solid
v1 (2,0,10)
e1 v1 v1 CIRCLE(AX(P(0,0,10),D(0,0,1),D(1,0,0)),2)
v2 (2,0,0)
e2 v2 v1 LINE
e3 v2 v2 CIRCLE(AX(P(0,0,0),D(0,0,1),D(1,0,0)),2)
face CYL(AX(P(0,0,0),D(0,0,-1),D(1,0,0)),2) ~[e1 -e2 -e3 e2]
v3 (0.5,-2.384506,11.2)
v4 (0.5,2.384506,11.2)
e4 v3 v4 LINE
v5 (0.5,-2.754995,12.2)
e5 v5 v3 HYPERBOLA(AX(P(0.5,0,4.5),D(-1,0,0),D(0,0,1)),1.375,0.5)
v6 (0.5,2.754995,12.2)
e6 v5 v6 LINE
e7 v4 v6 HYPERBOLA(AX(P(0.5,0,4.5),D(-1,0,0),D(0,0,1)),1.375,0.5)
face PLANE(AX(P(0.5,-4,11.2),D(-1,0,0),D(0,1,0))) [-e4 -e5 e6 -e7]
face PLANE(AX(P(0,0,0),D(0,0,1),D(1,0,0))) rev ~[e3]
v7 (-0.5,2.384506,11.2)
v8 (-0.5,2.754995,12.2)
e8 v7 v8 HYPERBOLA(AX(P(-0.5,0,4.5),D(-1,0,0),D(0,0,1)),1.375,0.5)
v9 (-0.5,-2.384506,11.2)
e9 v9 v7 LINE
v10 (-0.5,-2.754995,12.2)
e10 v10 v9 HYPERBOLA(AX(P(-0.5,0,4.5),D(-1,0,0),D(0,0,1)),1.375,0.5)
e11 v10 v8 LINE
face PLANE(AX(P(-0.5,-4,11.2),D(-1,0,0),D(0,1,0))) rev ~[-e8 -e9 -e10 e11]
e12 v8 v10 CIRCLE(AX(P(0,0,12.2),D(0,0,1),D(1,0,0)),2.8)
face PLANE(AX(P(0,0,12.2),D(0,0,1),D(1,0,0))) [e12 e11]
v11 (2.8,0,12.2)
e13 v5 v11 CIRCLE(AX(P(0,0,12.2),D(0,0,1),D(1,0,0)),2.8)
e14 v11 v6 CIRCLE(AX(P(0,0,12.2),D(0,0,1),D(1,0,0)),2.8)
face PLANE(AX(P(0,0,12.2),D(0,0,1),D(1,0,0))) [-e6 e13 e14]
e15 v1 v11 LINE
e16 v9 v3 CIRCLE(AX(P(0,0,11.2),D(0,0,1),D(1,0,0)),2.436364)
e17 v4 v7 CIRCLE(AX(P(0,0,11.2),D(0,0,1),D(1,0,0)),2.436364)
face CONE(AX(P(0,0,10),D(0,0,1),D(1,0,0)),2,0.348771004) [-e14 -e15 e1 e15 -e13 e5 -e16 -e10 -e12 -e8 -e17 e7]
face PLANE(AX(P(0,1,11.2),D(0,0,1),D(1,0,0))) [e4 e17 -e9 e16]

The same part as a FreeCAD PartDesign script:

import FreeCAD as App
import Part
import Sketcher
from FreeCAD import Vector

doc = App.newDocument("Part")
body = doc.addObject("PartDesign::Body", "Body")

# Sketch on XY plane
sketch1 = body.newObject("Sketcher::SketchObject", "Sketch")
sketch1.AttachmentSupport = (doc.getObject("XY_Plane"), [""])
sketch1.MapMode = "FlatFace"
sketch1.AttachmentOffset = App.Placement(Vector(0, 0, 11.2), App.Rotation())
sketch1.addGeometry(Part.LineSegment(Vector(-0.5, 6, 0), Vector(-0.5, -4, 0)), False)
sketch1.addGeometry(Part.LineSegment(Vector(-0.5, -4, 0), Vector(0.5, -4, 0)), False)
sketch1.addGeometry(Part.LineSegment(Vector(0.5, -4, 0), Vector(0.5, 6, 0)), False)
sketch1.addGeometry(Part.LineSegment(Vector(0.5, 6, 0), Vector(-0.5, 6, 0)), False)
sketch1.addConstraint(Sketcher.Constraint("Coincident", 0, 2, 1, 1))
sketch1.addConstraint(Sketcher.Constraint("Coincident", 1, 2, 2, 1))
sketch1.addConstraint(Sketcher.Constraint("Coincident", 2, 2, 3, 1))
sketch1.addConstraint(Sketcher.Constraint("Coincident", 3, 2, 0, 1))
sketch1.addConstraint(Sketcher.Constraint("Vertical", 0))
sketch1.addConstraint(Sketcher.Constraint("Horizontal", 1))
sketch1.addConstraint(Sketcher.Constraint("Vertical", 2))
sketch1.addConstraint(Sketcher.Constraint("Horizontal", 3))
sketch1.addConstraint(Sketcher.Constraint("DistanceX", 1, 1, 1, 2, 1.0))
sketch1.addConstraint(Sketcher.Constraint("DistanceY", 0, 2, 0, 1, 10.0))
sketch1.addConstraint(Sketcher.Constraint("DistanceY", 0, 2, -1, 1, 4.0))
sketch1.addConstraint(Sketcher.Constraint("DistanceX", 0, 2, -1, 1, 0.5))
pad1 = body.newObject("PartDesign::Pad", "Pad")
pad1.Profile = sketch1
pad1.Length = 1
body2 = doc.addObject("PartDesign::Body", "Body001")

# Sketch on XZ plane
sketch2 = body2.newObject("Sketcher::SketchObject", "Sketch001")
sketch2.AttachmentSupport = (doc.getObject("XZ_Plane001"), [""])
sketch2.MapMode = "FlatFace"
sketch2.addGeometry(Part.LineSegment(Vector(0, 10, 0), Vector(2, 10, 0)), False)
sketch2.addGeometry(Part.LineSegment(Vector(2, 10, 0), Vector(2.8, 12.2, 0)), False)
sketch2.addGeometry(Part.LineSegment(Vector(2.8, 12.2, 0), Vector(0, 12.2, 0)), False)
sketch2.addGeometry(Part.LineSegment(Vector(0, 12.2, 0), Vector(0, 10, 0)), False)
sketch2.addConstraint(Sketcher.Constraint("Coincident", 0, 2, 1, 1))
sketch2.addConstraint(Sketcher.Constraint("Coincident", 1, 2, 2, 1))
sketch2.addConstraint(Sketcher.Constraint("Coincident", 2, 2, 3, 1))
sketch2.addConstraint(Sketcher.Constraint("Coincident", 3, 2, 0, 1))
sketch2.addConstraint(Sketcher.Constraint("Horizontal", 0))
sketch2.addConstraint(Sketcher.Constraint("Horizontal", 2))
sketch2.addConstraint(Sketcher.Constraint("Vertical", 3))
sketch2.addConstraint(Sketcher.Constraint("PointOnObject", 2, 2, -2))
sketch2.addConstraint(Sketcher.Constraint("DistanceX", 0, 1, 0, 2, 2.0))
sketch2.addConstraint(Sketcher.Constraint("DistanceX", 2, 2, 2, 1, 2.8))
sketch2.addConstraint(Sketcher.Constraint("DistanceY", 3, 2, 3, 1, 2.2))
sketch2.addConstraint(Sketcher.Constraint("DistanceY", -1, 1, 0, 2, 10.0))
revolution = body2.newObject("PartDesign::Revolution", "Revolution")
revolution.Profile = sketch2
revolution.ReferenceAxis = (sketch2, ["V_Axis"])
revolution.Angle = 360
doc.recompute()

boolean = body2.newObject("PartDesign::Boolean", "Boolean")
boolean.Type = "Cut"
boolean.addObjects([body])
body3 = doc.addObject("PartDesign::Body", "Body002")

# Sketch on XY plane
sketch3 = body3.newObject("Sketcher::SketchObject", "Sketch002")
sketch3.AttachmentSupport = (doc.getObject("XY_Plane002"), [""])
sketch3.MapMode = "FlatFace"
sketch3.addGeometry(Part.Circle(Vector(0, 0, 0), Vector(0, 0, 1), 2), False)
sketch3.addConstraint(Sketcher.Constraint("Coincident", 0, 3, -1, 1))
sketch3.addConstraint(Sketcher.Constraint("Diameter", 0, 4.0))
pad2 = body3.newObject("PartDesign::Pad", "Pad001")
pad2.Profile = sketch3
pad2.Length = 10
doc.recompute()

boolean2 = body3.newObject("PartDesign::Boolean", "Boolean001")
boolean2.Type = "Fuse"
boolean2.addObjects([body2])

doc.recompute()
